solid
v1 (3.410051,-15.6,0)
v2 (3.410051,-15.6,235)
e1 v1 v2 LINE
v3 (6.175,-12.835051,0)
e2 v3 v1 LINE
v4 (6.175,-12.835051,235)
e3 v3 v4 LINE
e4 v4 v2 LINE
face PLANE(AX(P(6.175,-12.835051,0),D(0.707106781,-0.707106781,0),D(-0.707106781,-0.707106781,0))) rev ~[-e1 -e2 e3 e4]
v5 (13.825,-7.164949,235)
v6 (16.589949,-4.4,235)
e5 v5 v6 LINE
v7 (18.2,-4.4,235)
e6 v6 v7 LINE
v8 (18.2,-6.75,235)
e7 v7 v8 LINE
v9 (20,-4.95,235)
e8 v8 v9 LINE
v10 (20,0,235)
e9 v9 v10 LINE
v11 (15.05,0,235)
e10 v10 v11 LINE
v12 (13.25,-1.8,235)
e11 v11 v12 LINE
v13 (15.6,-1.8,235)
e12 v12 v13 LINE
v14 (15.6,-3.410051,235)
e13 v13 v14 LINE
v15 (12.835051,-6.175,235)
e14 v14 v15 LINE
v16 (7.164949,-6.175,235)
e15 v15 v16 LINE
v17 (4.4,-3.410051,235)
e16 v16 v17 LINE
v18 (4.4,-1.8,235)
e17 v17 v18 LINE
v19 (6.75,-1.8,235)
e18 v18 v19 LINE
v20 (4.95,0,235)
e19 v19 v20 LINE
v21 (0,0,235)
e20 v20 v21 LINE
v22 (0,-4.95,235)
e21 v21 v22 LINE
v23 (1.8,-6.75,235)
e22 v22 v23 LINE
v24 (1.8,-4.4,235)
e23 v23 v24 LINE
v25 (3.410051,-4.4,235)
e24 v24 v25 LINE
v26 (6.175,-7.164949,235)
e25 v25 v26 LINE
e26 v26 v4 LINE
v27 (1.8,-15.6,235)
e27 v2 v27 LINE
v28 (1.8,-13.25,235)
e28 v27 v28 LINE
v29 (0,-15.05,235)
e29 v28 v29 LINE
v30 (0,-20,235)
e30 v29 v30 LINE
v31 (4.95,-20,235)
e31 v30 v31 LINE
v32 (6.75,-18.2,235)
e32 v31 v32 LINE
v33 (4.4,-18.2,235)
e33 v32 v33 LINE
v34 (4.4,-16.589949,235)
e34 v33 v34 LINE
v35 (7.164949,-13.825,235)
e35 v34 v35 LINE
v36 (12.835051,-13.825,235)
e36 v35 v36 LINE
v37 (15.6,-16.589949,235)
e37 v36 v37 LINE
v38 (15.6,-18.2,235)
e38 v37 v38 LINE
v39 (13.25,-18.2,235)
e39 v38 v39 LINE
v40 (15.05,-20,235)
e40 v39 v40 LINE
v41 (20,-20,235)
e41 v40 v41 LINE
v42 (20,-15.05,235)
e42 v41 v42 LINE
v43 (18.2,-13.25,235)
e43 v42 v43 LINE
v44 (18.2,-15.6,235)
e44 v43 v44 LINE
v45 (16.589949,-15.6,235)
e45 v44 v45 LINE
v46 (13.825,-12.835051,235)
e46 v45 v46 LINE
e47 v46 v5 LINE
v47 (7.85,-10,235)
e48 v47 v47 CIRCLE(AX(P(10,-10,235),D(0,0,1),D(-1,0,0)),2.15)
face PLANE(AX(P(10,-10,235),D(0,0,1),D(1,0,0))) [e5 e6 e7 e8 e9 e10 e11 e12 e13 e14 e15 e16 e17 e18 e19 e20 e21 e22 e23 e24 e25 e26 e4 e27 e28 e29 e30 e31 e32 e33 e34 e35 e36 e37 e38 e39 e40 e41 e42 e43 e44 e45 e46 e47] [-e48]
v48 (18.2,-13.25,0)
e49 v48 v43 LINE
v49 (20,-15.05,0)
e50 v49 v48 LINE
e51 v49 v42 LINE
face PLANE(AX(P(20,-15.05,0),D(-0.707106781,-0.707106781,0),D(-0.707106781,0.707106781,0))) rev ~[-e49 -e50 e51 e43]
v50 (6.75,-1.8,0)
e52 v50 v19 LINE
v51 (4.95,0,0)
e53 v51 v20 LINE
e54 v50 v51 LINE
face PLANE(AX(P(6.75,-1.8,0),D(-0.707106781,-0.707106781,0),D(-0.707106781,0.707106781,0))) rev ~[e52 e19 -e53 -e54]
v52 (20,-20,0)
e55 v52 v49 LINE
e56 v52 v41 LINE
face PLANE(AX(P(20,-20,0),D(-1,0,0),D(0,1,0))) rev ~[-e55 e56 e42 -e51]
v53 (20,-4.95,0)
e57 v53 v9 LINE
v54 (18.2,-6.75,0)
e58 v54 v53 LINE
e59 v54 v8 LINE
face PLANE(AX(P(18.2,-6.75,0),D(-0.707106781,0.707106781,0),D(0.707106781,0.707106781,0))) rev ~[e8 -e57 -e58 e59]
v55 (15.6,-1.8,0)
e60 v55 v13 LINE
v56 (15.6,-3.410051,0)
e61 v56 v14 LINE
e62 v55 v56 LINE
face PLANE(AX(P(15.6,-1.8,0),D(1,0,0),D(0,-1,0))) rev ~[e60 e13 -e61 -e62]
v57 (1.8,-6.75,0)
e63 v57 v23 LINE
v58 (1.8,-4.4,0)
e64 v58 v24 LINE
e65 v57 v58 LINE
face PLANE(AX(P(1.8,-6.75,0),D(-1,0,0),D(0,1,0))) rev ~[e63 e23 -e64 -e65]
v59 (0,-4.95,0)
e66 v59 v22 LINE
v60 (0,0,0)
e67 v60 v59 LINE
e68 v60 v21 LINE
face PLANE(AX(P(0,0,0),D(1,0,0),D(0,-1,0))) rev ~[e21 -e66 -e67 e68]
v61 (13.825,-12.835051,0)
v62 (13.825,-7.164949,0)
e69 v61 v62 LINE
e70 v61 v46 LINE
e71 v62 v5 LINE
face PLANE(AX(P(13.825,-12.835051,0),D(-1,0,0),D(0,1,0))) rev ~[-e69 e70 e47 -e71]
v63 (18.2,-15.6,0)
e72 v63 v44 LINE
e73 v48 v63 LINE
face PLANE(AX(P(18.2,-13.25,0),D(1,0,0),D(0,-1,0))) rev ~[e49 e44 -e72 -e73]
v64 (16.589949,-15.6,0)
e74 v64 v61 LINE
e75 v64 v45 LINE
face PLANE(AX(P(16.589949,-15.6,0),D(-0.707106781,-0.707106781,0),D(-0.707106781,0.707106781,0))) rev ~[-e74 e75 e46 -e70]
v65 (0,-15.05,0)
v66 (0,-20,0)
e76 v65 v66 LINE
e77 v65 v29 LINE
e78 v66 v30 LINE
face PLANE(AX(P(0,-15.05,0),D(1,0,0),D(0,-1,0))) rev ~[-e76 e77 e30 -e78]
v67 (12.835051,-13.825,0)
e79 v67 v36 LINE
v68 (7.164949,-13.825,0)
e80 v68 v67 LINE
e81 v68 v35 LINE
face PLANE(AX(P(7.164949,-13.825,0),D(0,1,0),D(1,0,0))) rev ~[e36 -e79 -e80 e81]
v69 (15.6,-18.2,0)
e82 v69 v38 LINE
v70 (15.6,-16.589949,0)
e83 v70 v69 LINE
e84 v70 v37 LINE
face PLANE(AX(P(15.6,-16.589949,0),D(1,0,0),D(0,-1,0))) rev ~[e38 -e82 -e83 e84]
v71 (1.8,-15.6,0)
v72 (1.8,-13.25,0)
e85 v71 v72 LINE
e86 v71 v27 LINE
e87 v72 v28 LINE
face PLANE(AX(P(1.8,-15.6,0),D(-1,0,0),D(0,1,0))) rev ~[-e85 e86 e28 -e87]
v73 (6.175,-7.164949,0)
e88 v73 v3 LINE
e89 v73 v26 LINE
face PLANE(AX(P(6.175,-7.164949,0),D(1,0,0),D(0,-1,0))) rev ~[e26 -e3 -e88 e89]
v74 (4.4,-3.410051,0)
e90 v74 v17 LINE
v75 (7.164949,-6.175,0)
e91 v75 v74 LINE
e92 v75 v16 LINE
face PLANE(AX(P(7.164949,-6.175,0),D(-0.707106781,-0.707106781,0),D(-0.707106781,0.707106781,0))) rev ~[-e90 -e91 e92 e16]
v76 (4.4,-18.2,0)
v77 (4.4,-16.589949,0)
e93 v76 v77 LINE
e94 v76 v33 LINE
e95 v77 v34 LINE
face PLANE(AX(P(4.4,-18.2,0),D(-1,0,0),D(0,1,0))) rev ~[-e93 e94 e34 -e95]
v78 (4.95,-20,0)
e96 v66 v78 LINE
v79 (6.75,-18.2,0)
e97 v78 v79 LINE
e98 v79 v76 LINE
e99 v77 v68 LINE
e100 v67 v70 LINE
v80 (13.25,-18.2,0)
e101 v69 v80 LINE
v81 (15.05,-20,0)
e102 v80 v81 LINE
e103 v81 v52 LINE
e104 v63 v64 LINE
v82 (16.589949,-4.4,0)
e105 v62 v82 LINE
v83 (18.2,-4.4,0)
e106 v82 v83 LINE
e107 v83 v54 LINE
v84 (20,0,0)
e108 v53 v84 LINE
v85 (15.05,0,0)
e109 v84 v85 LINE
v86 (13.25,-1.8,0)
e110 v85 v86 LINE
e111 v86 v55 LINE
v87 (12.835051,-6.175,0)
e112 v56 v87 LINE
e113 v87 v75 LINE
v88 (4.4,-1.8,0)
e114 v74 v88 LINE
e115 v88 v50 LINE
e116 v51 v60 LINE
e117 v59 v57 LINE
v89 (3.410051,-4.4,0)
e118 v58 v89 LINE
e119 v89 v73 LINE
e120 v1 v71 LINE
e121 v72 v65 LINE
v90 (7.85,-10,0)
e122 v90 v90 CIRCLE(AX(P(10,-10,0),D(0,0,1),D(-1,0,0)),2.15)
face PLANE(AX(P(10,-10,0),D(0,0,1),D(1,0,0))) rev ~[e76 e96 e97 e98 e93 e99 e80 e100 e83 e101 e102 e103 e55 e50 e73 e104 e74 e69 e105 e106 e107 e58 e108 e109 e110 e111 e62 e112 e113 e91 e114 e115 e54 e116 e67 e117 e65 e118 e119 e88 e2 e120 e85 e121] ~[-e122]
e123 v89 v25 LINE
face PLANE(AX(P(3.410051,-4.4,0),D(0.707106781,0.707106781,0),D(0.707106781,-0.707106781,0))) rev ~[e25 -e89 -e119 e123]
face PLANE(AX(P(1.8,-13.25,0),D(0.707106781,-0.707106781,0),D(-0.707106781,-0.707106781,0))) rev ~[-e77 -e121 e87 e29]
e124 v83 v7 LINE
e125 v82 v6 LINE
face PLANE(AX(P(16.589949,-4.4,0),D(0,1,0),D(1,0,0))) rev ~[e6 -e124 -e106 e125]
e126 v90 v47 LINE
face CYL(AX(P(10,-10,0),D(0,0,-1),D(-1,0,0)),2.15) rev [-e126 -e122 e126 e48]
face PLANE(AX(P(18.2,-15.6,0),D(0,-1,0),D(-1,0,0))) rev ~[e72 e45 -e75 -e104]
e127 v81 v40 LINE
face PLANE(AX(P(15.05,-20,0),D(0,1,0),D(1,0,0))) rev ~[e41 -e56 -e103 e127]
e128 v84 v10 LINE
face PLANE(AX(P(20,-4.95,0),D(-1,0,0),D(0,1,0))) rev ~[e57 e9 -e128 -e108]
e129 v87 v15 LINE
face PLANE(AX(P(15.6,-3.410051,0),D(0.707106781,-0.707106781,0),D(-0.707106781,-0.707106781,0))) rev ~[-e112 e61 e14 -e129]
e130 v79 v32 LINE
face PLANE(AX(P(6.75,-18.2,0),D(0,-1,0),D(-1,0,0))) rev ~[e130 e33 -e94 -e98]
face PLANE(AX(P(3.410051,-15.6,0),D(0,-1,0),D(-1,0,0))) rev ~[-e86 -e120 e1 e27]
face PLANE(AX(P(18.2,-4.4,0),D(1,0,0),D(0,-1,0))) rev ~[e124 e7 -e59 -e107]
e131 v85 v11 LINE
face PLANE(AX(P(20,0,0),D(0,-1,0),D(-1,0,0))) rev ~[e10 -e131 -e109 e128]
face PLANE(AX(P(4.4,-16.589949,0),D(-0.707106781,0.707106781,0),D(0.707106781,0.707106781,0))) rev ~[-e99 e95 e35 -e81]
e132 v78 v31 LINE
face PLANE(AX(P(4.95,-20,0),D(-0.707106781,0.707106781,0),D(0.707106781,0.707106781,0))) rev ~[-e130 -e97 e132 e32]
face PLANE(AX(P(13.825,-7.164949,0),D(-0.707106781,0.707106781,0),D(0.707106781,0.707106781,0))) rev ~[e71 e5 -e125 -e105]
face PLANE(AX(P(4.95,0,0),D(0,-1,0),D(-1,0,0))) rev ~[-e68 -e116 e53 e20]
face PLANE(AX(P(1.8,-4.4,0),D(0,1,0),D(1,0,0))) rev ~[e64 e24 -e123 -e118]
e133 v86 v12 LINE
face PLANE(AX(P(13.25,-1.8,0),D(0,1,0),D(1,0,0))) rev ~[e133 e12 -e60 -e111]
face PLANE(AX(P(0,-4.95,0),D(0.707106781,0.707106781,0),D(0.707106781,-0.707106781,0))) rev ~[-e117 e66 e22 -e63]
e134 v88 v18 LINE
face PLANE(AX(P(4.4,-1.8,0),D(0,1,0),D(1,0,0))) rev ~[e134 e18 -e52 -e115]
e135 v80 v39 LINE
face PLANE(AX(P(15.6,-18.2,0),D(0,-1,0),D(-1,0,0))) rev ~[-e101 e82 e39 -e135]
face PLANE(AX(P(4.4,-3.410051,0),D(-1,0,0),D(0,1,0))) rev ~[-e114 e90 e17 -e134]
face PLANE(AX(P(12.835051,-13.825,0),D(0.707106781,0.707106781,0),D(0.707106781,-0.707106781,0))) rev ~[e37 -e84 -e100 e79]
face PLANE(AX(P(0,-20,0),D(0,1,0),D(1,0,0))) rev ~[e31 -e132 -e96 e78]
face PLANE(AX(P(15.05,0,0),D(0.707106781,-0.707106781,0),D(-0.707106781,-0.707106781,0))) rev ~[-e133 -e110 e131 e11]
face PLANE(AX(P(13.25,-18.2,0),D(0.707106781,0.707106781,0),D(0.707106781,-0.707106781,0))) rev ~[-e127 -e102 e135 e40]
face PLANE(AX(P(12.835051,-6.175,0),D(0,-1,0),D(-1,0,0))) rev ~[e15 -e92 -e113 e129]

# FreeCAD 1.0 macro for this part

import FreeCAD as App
import Part
import Sketcher

V = App.Vector
Q = App.Units.Quantity


def add_polygon(sketch, points):
    """Adds a closed chain of lines whose ends are joined by coincident constraints."""
    first, n = sketch.GeometryCount, len(points)
    for a, b in zip(points, points[1:] + points[:1]):
        sketch.addGeometry(Part.LineSegment(App.Vector(*a, 0), App.Vector(*b, 0)), False)
    for i in range(n):
        sketch.addConstraint(Sketcher.Constraint("Coincident", first + i, 2, first + (i + 1) % n, 1))

doc = App.newDocument("Part")
body = doc.addObject("PartDesign::Body", "Body")

# Sketch on XY plane
sketch1 = body.newObject("Sketcher::SketchObject", "Sketch")
sketch1.AttachmentSupport = (doc.getObject("XY_Plane"), [""])
sketch1.MapMode = "FlatFace"
add_polygon(sketch1, [(0, 0), (0, -4.95), (1.8, -6.75), (1.8, -4.4), (3.410051, -4.4), (6.175, -7.164949), (6.175, -12.835051), (3.410051, -15.6), (1.8, -15.6), (1.8, -13.25), (0, -15.05), (0, -20), (4.95, -20), (6.75, -18.2), (4.4, -18.2), (4.4, -16.589949), (7.164949, -13.825), (12.835051, -13.825), (15.6, -16.589949), (15.6, -18.2), (13.25, -18.2), (15.05, -20), (20, -20), (20, -15.05), (18.2, -13.25), (18.2, -15.6), (16.589949, -15.6), (13.825, -12.835051), (13.825, -7.164949), (16.589949, -4.4), (18.2, -4.4), (18.2, -6.75), (20, -4.95), (20, 0), (15.05, 0), (13.25, -1.8), (15.6, -1.8), (15.6, -3.410051), (12.835051, -6.175), (7.164949, -6.175), (4.4, -3.410051), (4.4, -1.8), (6.75, -1.8), (4.95, 0)])  # lines 0-43
sketch1.addGeometry(Part.Circle(V(10, -10, 0), V(0, 0, 1), 2.15), False)  # 44
sketch1.addConstraint(Sketcher.Constraint("Vertical", 0))
sketch1.addConstraint(Sketcher.Constraint("Vertical", 2))
sketch1.addConstraint(Sketcher.Constraint("Horizontal", 3))
sketch1.addConstraint(Sketcher.Constraint("Vertical", 5))
sketch1.addConstraint(Sketcher.Constraint("Horizontal", 7))
sketch1.addConstraint(Sketcher.Constraint("Vertical", 8))
sketch1.addConstraint(Sketcher.Constraint("Vertical", 10))
sketch1.addConstraint(Sketcher.Constraint("Horizontal", 11))
sketch1.addConstraint(Sketcher.Constraint("Horizontal", 13))
sketch1.addConstraint(Sketcher.Constraint("Vertical", 14))
sketch1.addConstraint(Sketcher.Constraint("Horizontal", 16))
sketch1.addConstraint(Sketcher.Constraint("Vertical", 18))
sketch1.addConstraint(Sketcher.Constraint("Horizontal", 19))
sketch1.addConstraint(Sketcher.Constraint("Horizontal", 21))
sketch1.addConstraint(Sketcher.Constraint("Vertical", 22))
sketch1.addConstraint(Sketcher.Constraint("Vertical", 24))
sketch1.addConstraint(Sketcher.Constraint("Horizontal", 25))
sketch1.addConstraint(Sketcher.Constraint("Vertical", 27))
sketch1.addConstraint(Sketcher.Constraint("Horizontal", 29))
sketch1.addConstraint(Sketcher.Constraint("Vertical", 30))
sketch1.addConstraint(Sketcher.Constraint("Vertical", 32))
sketch1.addConstraint(Sketcher.Constraint("Horizontal", 33))
sketch1.addConstraint(Sketcher.Constraint("Horizontal", 35))
sketch1.addConstraint(Sketcher.Constraint("Vertical", 36))
sketch1.addConstraint(Sketcher.Constraint("Horizontal", 38))
sketch1.addConstraint(Sketcher.Constraint("Vertical", 40))
sketch1.addConstraint(Sketcher.Constraint("Horizontal", 41))
sketch1.addConstraint(Sketcher.Constraint("Horizontal", 43))
sketch1.addConstraint(Sketcher.Constraint("Coincident", 43, 2, -1, 1))
sketch1.addConstraint(Sketcher.Constraint("PointOnObject", 9, 2, -2))
sketch1.addConstraint(Sketcher.Constraint("PointOnObject", 32, 2, -1))
sketch1.addConstraint(Sketcher.Constraint("Parallel", 1, 4))
sketch1.addConstraint(Sketcher.Constraint("Perpendicular", 4, 6))
sketch1.addConstraint(Sketcher.Constraint("Parallel", 6, 9))
sketch1.addConstraint(Sketcher.Constraint("Parallel", 9, 12))
sketch1.addConstraint(Sketcher.Constraint("Parallel", 12, 15))
sketch1.addConstraint(Sketcher.Constraint("Perpendicular", 15, 17))
sketch1.addConstraint(Sketcher.Constraint("Parallel", 17, 20))
sketch1.addConstraint(Sketcher.Constraint("Parallel", 20, 23))
sketch1.addConstraint(Sketcher.Constraint("Parallel", 23, 26))
sketch1.addConstraint(Sketcher.Constraint("Perpendicular", 26, 28))
sketch1.addConstraint(Sketcher.Constraint("Parallel", 28, 31))
sketch1.addConstraint(Sketcher.Constraint("Parallel", 31, 34))
sketch1.addConstraint(Sketcher.Constraint("Parallel", 34, 37))
sketch1.addConstraint(Sketcher.Constraint("Perpendicular", 37, 39))
sketch1.addConstraint(Sketcher.Constraint("Parallel", 39, 42))
sketch1.addConstraint(Sketcher.Constraint("Horizontal", 14, 2, 17, 2))
sketch1.addConstraint(Sketcher.Constraint("Horizontal", 13, 2, 18, 2))
sketch1.addConstraint(Sketcher.Constraint("Horizontal", 11, 2, 20, 2))
sketch1.addConstraint(Sketcher.Constraint("Horizontal", 9, 2, 22, 2))
sketch1.addConstraint(Sketcher.Constraint("Horizontal", 8, 2, 23, 2))
sketch1.addConstraint(Sketcher.Constraint("Horizontal", 7, 2, 24, 2))
sketch1.addConstraint(Sketcher.Constraint("Horizontal", 5, 2, 26, 2))
sketch1.addConstraint(Sketcher.Constraint("Horizontal", 4, 2, 27, 2))
sketch1.addConstraint(Sketcher.Constraint("Horizontal", 3, 2, 28, 2))
sketch1.addConstraint(Sketcher.Constraint("Horizontal", 1, 2, 30, 2))
sketch1.addConstraint(Sketcher.Constraint("Horizontal", 0, 2, 31, 2))
sketch1.addConstraint(Sketcher.Constraint("Horizontal", 36, 2, 39, 2))
sketch1.addConstraint(Sketcher.Constraint("Horizontal", 35, 2, 40, 2))
sketch1.addConstraint(Sketcher.Constraint("Vertical", 3, 2, 6, 2))
sketch1.addConstraint(Sketcher.Constraint("Vertical", 2, 2, 7, 2))
sketch1.addConstraint(Sketcher.Constraint("Vertical", 25, 2, 28, 2))
sketch1.addConstraint(Sketcher.Constraint("Vertical", 24, 2, 29, 2))
sketch1.addConstraint(Sketcher.Constraint("Vertical", 20, 2, 33, 2))
sketch1.addConstraint(Sketcher.Constraint("Vertical", 19, 2, 34, 2))
sketch1.addConstraint(Sketcher.Constraint("Vertical", 18, 2, 35, 2))
sketch1.addConstraint(Sketcher.Constraint("Vertical", 16, 2, 37, 2))
sketch1.addConstraint(Sketcher.Constraint("Vertical", 15, 2, 38, 2))
sketch1.addConstraint(Sketcher.Constraint("Vertical", 12, 2, 41, 2))
sketch1.addConstraint(Sketcher.Constraint("Equal", 13, 19))
sketch1.addConstraint(Sketcher.Constraint("Equal", 11, 21))
sketch1.addConstraint(Sketcher.Constraint("Equal", 7, 25))
sketch1.addConstraint(Sketcher.Constraint("Equal", 43, 0))
sketch1.addConstraint(Sketcher.Constraint("Equal", 41, 2))
sketch1.addConstraint(Sketcher.Constraint("Equal", 38, 5))
sketch1.addConstraint(Sketcher.Constraint("Equal", 2, 8))
sketch1.addConstraint(Sketcher.Constraint("Equal", 0, 10))
sketch1.addConstraint(Sketcher.Constraint("Equal", 29, 14))
sketch1.addConstraint(Sketcher.Constraint("Equal", 18, 36))
sketch1.addConstraint(Sketcher.Constraint("Equal", 9, 12))
sketch1.addConstraint(Sketcher.Constraint("Equal", 6, 15))
sketch1.addConstraint(Sketcher.Constraint("Diameter", 44, Q("4.3 mm")))
sketch1.addConstraint(Sketcher.Constraint("DistanceX", -1, 1, 44, 3, Q("10 mm")))
sketch1.addConstraint(Sketcher.Constraint("DistanceY", 44, 3, -1, 1, Q("10 mm")))
sketch1.addConstraint(Sketcher.Constraint("DistanceY", 10, 2, -1, 1, Q("20 mm")))
sketch1.addConstraint(Sketcher.Constraint("DistanceX", 11, 1, 11, 2, Q("4.95 mm")))
sketch1.addConstraint(Sketcher.Constraint("DistanceX", 13, 2, 13, 1, Q("2.35 mm")))
sketch1.addConstraint(Sketcher.Constraint("DistanceX", -1, 1, 1, 2, Q("1.8 mm")))
sketch1.addConstraint(Sketcher.Constraint("DistanceX", 4, 2, 27, 2, Q("7.65 mm")))
sketch1.addConstraint(Sketcher.Constraint("DistanceX", 16, 1, 16, 2, Q("5.670101 mm")))
pad1 = body.newObject("PartDesign::Pad", "Pad")
pad1.Profile = sketch1
pad1.Length = 235

doc.recompute()
